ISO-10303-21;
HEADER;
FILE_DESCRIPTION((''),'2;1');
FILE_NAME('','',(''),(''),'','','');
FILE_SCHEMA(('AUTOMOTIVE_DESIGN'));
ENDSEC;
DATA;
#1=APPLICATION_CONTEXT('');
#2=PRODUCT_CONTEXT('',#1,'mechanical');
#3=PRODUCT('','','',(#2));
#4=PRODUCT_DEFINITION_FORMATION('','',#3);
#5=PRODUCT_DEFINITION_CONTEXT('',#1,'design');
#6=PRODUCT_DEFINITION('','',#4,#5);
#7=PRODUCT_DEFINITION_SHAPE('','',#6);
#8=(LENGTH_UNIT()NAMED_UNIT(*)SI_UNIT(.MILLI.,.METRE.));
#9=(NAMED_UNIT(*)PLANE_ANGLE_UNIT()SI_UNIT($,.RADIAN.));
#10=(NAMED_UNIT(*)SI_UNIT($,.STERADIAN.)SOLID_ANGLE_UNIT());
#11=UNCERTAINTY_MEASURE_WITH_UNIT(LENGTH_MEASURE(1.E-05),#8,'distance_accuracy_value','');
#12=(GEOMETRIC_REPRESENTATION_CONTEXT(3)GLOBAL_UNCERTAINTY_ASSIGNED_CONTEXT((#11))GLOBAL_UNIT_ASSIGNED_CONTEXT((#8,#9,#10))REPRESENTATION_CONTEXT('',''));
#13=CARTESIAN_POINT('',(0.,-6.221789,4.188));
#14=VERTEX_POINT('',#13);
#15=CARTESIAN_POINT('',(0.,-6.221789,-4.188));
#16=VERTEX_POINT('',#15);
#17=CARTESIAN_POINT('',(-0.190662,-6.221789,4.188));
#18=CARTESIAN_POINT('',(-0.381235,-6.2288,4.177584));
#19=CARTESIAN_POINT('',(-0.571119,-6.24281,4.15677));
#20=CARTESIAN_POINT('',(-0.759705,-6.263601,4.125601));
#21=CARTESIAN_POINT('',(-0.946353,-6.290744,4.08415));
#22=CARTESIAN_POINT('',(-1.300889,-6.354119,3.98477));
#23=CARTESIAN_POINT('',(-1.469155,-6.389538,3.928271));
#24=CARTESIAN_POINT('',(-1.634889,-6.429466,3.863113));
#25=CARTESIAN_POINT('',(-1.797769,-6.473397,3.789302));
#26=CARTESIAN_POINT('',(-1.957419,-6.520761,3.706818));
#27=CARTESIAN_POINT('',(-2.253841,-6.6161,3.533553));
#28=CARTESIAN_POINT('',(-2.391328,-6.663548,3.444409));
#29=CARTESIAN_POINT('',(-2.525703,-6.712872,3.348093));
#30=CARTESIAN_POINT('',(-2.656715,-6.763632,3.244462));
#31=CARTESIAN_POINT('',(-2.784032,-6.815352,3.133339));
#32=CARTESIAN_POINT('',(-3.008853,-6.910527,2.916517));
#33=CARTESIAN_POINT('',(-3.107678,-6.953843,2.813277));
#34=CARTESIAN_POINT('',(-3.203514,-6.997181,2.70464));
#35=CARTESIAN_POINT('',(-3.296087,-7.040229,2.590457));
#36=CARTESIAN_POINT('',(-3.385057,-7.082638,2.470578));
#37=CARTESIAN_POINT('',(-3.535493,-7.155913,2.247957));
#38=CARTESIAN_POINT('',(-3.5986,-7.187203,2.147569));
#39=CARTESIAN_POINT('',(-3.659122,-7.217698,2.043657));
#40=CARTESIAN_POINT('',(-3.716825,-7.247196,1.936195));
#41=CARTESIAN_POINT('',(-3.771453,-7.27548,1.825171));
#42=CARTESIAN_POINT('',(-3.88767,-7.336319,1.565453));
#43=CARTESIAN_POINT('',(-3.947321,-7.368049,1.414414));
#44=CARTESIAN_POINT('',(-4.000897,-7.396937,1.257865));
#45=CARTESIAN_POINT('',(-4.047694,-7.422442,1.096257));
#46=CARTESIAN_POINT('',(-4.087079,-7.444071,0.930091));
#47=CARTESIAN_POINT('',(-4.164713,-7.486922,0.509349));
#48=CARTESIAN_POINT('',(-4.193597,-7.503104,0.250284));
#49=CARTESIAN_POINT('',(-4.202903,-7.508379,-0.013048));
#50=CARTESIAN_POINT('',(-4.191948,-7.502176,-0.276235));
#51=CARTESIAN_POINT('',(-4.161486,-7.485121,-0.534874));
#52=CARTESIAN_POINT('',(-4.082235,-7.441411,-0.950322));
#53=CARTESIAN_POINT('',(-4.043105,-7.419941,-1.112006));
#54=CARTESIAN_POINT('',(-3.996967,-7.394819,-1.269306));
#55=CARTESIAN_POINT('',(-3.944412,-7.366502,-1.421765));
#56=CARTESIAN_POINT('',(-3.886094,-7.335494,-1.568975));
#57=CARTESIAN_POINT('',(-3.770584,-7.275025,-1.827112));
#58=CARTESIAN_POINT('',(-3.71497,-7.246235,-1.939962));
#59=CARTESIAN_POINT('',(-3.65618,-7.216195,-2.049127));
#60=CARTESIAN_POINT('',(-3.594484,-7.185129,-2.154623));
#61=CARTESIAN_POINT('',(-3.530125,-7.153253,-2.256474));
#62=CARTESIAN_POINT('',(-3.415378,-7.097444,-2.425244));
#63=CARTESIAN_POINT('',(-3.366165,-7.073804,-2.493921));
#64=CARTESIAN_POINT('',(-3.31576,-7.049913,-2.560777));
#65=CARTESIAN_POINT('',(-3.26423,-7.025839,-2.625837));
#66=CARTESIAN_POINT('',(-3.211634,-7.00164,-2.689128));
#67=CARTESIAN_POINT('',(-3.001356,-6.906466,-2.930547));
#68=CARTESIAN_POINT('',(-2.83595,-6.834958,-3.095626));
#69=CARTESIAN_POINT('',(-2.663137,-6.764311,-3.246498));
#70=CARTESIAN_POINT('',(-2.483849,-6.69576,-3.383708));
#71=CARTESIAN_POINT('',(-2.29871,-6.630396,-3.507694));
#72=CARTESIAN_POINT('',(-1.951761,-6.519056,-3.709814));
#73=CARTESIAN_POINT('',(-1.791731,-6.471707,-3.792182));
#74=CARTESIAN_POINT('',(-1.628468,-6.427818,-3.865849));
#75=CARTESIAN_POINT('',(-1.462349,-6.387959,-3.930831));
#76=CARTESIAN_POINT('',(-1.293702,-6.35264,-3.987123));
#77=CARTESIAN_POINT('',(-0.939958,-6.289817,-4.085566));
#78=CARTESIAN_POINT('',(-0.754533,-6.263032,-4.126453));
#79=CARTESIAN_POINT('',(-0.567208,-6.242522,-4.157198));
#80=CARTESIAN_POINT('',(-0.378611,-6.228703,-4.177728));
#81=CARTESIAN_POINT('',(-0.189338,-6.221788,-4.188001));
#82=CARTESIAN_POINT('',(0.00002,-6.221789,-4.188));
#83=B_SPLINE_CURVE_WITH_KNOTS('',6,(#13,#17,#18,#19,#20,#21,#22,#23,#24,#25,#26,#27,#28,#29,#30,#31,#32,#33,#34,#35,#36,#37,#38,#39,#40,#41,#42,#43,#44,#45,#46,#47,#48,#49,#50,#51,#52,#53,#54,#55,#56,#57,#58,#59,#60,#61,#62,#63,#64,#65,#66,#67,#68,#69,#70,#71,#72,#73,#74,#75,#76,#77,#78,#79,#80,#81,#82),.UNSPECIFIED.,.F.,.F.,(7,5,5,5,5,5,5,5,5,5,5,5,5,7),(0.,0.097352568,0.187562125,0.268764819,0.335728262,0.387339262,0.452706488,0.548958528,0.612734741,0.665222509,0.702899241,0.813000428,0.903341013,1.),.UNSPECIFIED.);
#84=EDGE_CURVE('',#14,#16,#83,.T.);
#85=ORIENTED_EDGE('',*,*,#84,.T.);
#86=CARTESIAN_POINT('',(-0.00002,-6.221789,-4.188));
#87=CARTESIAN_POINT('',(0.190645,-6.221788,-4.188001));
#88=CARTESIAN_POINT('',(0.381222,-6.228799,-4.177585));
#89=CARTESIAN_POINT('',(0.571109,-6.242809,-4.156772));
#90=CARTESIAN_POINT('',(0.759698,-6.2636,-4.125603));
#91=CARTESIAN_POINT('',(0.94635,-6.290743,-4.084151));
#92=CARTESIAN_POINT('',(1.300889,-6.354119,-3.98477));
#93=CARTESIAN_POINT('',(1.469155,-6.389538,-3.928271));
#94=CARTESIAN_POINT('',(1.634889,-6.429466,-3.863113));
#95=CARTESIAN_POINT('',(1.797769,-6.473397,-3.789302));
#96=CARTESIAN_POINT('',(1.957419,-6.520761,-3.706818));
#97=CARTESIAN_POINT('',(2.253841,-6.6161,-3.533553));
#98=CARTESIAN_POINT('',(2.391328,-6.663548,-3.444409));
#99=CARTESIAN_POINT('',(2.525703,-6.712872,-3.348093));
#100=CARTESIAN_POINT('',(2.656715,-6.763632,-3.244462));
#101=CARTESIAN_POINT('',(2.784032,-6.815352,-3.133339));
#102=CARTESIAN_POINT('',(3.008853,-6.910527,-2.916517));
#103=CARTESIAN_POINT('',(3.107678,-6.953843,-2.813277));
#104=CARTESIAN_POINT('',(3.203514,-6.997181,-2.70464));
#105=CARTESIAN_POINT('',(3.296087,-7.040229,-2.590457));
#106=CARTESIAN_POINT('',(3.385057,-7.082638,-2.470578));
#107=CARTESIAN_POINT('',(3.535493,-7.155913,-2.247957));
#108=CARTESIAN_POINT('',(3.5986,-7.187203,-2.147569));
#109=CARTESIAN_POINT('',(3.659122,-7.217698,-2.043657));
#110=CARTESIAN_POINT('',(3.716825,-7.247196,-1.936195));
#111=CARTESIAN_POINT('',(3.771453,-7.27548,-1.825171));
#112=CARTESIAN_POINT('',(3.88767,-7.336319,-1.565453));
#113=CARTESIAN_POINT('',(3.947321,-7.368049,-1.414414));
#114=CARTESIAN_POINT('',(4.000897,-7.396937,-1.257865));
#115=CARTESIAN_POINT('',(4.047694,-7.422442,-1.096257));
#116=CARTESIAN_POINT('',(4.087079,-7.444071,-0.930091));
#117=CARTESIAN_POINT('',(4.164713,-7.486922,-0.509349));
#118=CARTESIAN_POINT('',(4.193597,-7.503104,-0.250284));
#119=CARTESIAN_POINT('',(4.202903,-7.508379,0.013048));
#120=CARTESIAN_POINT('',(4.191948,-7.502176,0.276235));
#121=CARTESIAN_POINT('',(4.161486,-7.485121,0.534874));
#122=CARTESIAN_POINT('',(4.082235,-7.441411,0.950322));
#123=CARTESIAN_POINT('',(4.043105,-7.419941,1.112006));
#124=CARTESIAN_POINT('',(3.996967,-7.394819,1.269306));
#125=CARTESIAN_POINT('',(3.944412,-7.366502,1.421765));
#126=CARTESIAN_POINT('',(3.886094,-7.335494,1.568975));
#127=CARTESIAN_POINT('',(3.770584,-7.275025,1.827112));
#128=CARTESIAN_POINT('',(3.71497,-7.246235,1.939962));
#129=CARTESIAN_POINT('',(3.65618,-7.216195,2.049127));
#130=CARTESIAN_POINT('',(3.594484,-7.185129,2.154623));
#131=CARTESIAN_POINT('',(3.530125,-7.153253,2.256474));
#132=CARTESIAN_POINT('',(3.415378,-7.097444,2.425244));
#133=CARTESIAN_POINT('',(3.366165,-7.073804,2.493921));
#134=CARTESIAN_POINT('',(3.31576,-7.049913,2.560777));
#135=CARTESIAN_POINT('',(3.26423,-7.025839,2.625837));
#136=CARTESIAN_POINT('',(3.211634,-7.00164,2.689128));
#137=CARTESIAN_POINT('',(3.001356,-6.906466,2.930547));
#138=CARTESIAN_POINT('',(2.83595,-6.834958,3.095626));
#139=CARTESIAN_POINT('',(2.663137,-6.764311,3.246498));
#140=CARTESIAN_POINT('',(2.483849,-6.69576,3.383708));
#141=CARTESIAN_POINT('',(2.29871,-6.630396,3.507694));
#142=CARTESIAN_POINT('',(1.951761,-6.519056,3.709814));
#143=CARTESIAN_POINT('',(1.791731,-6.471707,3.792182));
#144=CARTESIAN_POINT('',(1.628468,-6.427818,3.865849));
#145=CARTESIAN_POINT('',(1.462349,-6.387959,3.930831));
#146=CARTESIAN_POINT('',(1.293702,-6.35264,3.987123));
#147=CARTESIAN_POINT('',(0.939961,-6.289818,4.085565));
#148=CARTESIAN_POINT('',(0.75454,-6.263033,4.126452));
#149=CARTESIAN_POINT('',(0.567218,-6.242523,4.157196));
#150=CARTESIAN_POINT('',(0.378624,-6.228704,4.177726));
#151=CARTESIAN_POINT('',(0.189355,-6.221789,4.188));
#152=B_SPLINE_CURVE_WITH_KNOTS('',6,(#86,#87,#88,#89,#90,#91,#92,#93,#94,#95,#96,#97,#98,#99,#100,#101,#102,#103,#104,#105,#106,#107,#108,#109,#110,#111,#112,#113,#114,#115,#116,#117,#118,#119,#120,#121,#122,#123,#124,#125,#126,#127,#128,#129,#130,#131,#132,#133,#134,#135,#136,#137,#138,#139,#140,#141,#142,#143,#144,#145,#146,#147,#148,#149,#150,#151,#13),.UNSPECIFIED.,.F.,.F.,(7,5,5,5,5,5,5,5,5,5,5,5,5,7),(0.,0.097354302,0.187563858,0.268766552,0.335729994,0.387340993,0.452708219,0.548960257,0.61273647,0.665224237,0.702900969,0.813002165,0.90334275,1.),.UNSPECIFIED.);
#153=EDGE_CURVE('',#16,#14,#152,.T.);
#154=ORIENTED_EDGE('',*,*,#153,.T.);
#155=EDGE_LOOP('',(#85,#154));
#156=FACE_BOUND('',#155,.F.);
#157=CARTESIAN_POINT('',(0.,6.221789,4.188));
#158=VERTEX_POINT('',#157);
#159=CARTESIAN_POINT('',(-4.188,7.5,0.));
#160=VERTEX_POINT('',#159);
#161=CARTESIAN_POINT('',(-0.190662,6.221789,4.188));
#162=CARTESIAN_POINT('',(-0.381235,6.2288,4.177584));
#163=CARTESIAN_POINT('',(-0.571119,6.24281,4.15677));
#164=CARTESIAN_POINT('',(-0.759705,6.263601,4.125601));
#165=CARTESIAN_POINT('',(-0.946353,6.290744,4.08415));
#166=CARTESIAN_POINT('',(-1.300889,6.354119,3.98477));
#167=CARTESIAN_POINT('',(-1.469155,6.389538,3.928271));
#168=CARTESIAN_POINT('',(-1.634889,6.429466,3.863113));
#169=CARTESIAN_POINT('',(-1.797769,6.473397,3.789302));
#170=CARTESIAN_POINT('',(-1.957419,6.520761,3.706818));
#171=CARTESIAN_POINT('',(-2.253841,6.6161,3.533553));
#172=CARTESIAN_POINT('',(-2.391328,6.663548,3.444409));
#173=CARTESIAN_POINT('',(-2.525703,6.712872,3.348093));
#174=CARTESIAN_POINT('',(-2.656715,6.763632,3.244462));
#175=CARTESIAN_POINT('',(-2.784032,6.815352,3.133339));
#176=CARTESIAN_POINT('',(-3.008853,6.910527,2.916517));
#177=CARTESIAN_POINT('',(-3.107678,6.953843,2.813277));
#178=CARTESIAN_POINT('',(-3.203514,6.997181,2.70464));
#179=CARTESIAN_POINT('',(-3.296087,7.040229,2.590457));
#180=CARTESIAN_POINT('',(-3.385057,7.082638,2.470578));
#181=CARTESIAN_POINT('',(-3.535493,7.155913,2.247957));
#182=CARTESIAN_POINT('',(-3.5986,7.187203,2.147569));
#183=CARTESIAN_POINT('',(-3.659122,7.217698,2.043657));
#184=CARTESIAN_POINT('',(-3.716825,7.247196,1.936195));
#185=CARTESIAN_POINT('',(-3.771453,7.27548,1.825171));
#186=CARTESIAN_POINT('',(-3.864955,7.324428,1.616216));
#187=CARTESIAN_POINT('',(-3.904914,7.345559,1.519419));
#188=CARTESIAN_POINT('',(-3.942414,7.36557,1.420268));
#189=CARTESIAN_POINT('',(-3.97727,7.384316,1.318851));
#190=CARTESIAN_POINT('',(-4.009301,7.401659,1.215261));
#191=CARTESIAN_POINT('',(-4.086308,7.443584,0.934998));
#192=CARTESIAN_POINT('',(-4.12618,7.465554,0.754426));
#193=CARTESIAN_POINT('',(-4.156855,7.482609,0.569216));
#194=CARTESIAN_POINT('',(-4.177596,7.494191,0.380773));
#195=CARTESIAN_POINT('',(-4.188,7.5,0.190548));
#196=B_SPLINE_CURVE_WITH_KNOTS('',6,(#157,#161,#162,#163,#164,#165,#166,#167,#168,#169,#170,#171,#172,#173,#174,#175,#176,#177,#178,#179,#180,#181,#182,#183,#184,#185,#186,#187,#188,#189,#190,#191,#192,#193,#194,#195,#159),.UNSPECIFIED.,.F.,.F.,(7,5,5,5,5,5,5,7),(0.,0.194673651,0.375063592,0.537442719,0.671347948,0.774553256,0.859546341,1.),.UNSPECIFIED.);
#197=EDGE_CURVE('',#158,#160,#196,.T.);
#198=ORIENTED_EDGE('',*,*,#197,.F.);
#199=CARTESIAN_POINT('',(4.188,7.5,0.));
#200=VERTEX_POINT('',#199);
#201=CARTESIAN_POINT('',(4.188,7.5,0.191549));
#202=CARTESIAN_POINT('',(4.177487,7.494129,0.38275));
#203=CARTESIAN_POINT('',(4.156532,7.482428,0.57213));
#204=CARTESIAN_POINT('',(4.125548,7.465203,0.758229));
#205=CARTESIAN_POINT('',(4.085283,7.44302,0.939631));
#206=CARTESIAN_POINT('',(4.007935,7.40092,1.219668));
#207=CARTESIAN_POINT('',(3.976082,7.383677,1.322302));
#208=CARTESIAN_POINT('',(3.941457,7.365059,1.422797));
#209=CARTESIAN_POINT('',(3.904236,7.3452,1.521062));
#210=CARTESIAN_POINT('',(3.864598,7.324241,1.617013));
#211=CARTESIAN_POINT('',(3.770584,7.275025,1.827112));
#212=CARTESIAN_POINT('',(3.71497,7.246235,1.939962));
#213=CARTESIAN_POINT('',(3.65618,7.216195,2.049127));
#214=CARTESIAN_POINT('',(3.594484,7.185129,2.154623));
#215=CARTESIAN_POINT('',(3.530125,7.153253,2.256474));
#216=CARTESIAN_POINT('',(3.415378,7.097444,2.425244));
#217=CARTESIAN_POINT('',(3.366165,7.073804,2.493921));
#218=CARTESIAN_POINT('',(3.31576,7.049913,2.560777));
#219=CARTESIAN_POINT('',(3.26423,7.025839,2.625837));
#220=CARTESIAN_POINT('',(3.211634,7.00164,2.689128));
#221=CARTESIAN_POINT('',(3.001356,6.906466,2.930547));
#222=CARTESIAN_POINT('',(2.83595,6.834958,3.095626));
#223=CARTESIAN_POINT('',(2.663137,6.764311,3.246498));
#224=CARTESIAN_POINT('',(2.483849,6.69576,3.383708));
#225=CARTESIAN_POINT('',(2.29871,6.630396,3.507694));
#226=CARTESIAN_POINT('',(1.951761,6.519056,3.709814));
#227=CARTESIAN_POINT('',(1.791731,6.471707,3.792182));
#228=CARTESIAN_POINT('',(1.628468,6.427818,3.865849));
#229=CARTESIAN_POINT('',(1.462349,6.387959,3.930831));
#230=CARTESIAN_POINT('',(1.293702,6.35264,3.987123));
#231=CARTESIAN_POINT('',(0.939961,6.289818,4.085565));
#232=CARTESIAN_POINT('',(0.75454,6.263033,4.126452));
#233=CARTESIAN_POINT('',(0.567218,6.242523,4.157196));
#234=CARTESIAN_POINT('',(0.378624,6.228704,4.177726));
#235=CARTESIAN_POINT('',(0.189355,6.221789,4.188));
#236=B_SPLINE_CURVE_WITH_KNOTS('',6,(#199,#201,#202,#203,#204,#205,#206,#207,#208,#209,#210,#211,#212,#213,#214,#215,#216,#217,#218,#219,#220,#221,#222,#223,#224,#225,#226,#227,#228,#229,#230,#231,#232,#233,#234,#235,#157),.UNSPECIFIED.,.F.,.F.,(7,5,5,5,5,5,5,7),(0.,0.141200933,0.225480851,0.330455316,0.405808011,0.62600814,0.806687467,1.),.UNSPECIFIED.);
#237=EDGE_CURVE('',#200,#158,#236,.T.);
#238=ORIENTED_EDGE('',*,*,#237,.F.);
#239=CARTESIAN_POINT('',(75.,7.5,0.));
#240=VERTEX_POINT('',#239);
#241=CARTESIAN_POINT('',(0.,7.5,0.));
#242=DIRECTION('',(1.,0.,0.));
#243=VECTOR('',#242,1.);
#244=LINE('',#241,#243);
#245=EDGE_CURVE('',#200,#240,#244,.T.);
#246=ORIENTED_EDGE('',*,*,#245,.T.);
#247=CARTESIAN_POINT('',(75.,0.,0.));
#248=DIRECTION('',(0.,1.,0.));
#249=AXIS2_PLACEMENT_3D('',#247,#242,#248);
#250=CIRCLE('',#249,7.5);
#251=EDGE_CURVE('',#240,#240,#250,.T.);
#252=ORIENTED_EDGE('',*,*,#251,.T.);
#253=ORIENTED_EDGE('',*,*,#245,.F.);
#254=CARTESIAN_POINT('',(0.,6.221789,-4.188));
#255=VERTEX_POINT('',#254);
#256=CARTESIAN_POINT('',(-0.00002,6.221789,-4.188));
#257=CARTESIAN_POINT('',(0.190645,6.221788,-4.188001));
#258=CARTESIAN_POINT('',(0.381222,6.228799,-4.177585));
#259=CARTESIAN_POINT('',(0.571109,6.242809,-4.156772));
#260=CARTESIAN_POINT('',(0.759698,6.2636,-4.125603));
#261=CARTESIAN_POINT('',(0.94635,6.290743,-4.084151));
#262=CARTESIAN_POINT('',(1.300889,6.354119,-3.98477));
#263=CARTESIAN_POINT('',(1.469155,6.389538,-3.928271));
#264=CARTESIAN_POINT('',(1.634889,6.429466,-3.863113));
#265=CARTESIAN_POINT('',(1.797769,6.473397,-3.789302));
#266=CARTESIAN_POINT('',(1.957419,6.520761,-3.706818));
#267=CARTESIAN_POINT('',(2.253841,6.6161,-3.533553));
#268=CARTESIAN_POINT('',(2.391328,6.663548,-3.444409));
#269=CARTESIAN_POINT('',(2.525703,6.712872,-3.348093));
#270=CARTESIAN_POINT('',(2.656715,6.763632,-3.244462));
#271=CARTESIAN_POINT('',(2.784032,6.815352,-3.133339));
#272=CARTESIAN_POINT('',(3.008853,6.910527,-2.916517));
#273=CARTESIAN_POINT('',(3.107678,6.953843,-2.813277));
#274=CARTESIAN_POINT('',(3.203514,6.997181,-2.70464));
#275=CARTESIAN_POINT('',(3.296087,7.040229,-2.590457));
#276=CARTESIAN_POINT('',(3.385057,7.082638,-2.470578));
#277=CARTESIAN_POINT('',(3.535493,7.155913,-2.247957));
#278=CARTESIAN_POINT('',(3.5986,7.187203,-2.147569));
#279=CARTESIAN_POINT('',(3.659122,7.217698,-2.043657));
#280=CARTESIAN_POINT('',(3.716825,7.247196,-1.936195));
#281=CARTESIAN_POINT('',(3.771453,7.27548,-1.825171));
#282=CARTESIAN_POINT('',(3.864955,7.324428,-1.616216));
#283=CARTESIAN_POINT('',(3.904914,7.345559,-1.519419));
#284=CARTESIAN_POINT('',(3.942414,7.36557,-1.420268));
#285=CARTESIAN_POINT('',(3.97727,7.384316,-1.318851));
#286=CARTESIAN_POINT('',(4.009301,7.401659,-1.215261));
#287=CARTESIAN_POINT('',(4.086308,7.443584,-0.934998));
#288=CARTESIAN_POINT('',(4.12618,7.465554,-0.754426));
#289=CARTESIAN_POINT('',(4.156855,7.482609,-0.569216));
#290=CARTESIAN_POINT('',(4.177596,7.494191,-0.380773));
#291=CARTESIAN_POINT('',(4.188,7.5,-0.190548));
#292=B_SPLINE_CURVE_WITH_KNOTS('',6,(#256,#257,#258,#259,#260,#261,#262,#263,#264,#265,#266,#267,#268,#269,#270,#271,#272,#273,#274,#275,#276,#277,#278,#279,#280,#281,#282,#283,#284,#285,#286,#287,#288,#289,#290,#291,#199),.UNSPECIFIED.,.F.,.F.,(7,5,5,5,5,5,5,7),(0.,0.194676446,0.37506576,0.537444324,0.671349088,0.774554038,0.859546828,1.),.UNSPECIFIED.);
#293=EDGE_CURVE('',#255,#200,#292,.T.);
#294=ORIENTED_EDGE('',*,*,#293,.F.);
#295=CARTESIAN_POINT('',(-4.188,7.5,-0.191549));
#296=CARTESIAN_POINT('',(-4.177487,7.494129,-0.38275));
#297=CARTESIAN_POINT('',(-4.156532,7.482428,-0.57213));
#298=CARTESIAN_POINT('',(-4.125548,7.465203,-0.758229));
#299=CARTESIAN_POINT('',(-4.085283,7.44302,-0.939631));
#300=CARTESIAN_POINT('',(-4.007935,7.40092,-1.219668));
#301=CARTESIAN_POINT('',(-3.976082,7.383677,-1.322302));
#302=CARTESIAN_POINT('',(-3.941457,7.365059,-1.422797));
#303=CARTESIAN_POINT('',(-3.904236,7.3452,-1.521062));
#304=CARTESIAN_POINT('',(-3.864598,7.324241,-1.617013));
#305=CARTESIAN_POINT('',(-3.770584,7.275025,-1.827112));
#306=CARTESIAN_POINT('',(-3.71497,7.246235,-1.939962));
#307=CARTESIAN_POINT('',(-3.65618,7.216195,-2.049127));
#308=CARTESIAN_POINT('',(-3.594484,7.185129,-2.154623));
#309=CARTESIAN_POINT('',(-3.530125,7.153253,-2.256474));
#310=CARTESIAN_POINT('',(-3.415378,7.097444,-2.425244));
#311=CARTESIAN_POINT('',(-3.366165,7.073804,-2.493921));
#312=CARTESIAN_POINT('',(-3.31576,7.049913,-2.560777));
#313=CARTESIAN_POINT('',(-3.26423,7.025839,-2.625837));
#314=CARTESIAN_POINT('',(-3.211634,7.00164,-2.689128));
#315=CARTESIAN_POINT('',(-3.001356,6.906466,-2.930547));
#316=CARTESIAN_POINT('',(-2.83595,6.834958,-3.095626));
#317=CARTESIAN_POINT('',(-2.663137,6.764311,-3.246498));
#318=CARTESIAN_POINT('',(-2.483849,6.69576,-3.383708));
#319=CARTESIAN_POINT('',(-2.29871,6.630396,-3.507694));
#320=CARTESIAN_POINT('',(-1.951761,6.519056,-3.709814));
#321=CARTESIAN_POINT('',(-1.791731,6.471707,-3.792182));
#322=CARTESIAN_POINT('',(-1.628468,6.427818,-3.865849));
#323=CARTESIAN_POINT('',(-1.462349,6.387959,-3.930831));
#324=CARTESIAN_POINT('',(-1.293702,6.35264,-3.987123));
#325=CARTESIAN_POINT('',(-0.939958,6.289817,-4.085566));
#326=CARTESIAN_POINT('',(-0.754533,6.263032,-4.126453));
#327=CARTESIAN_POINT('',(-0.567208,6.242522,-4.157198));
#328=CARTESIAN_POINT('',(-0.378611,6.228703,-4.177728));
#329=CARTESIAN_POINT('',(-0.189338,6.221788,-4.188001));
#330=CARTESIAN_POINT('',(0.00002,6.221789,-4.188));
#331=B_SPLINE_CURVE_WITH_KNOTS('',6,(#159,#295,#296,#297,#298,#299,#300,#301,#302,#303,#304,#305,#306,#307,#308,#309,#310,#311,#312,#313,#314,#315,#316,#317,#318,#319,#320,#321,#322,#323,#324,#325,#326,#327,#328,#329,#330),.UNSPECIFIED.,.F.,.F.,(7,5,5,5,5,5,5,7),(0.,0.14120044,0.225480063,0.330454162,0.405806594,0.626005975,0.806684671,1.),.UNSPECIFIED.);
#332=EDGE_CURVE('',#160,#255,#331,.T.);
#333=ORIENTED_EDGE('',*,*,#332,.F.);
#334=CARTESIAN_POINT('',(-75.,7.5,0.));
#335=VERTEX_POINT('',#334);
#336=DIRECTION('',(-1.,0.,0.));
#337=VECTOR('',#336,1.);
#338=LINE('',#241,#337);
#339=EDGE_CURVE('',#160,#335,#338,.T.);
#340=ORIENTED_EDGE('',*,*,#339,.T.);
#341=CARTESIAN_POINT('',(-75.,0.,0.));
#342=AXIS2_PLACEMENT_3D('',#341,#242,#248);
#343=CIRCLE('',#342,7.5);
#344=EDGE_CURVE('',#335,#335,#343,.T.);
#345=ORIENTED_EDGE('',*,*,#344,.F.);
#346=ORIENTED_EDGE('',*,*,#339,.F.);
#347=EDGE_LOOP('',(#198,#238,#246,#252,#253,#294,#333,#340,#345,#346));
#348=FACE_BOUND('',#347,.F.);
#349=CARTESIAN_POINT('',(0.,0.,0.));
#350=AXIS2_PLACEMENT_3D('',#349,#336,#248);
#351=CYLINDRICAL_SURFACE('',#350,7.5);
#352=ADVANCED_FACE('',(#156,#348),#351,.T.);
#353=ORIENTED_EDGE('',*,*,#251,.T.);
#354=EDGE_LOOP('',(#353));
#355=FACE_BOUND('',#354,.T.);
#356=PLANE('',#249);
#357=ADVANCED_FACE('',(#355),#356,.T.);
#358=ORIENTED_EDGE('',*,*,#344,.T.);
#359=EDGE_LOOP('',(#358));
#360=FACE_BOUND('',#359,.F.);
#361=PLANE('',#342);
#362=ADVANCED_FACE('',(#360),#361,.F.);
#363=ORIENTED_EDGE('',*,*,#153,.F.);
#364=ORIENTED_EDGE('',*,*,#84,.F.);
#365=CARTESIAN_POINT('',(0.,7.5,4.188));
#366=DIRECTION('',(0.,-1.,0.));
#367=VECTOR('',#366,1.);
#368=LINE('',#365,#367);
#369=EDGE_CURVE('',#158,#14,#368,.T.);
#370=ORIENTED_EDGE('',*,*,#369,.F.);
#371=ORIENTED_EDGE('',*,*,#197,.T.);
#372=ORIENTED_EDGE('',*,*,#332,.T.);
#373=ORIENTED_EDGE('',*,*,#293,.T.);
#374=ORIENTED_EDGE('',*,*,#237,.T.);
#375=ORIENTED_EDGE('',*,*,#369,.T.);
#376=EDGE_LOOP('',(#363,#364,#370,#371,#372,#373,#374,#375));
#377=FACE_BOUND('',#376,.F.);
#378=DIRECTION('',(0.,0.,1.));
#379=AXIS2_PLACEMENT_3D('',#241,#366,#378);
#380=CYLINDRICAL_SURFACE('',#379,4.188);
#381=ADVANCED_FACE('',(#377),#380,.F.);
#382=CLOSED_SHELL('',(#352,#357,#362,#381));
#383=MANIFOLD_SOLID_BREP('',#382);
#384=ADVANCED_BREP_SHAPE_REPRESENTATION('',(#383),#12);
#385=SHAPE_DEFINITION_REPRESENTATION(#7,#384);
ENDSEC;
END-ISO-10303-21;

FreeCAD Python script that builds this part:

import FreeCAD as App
import Part
import Sketcher

V = App.Vector
Q = App.Units.Quantity

doc = App.newDocument("Part")
params = doc.addObject("Spreadsheet::Sheet", "Params")
for row, (alias, value) in enumerate([
    ("sketch1_diameter", "15 mm"),
    ("pad1_length", "150 mm"),
    ("hole_diameter", "8.376 mm"),
    ("hole_depth", "27.3 mm"),
], start=1):
    params.set(f"A{row}", alias)
    params.set(f"B{row}", "=" + value)
    params.setAlias(f"B{row}", alias)

body = doc.addObject("PartDesign::Body", "Body")

# Sketch on YZ plane
sketch1 = body.newObject("Sketcher::SketchObject", "Sketch")
sketch1.AttachmentSupport = (doc.getObject("YZ_Plane"), [""])
sketch1.MapMode = "FlatFace"
sketch1.addGeometry(Part.Circle(V(0, 0, 0), V(0, 0, 1), 8), False)
sketch1.addConstraint(Sketcher.Constraint("Coincident", 0, 3, -1, 1))
sketch1.addConstraint(Sketcher.Constraint("Diameter", 0, Q("15 mm")))
sketch1.setExpression("Constraints[1]", "Params.sketch1_diameter")
pad1 = body.newObject("PartDesign::Pad", "Pad")
pad1.Profile = sketch1
pad1.setExpression("Length", "Params.pad1_length")
pad1.Midplane = True

# Sketch on XZ plane
sketch2 = body.newObject("Sketcher::SketchObject", "Sketch001")
sketch2.AttachmentSupport = (doc.getObject("XZ_Plane"), [""])
sketch2.MapMode = "FlatFace"
sketch2.AttachmentOffset = App.Placement(V(0, 0, -7.5), App.Rotation())
sketch2.addGeometry(Part.Circle(V(0, 0, 0), V(0, 0, 1), 4.2), False)
sketch2.addConstraint(Sketcher.Constraint("Coincident", 0, 3, -1, 1))
sketch2.addConstraint(Sketcher.Constraint("Diameter", 0, Q("8.376 mm")))
doc.recompute()
hole = body.newObject("PartDesign::Hole", "Hole")
hole.Profile = sketch2
hole.ThreadType = "None"
hole.setExpression("Diameter", "Params.hole_diameter")
hole.DepthType = "Dimension"
hole.setExpression("Depth", "Params.hole_depth")
hole.DrillPoint = "Angled"
hole.DrillPointAngle = 118
hole.Reversed = True

doc.recompute()
